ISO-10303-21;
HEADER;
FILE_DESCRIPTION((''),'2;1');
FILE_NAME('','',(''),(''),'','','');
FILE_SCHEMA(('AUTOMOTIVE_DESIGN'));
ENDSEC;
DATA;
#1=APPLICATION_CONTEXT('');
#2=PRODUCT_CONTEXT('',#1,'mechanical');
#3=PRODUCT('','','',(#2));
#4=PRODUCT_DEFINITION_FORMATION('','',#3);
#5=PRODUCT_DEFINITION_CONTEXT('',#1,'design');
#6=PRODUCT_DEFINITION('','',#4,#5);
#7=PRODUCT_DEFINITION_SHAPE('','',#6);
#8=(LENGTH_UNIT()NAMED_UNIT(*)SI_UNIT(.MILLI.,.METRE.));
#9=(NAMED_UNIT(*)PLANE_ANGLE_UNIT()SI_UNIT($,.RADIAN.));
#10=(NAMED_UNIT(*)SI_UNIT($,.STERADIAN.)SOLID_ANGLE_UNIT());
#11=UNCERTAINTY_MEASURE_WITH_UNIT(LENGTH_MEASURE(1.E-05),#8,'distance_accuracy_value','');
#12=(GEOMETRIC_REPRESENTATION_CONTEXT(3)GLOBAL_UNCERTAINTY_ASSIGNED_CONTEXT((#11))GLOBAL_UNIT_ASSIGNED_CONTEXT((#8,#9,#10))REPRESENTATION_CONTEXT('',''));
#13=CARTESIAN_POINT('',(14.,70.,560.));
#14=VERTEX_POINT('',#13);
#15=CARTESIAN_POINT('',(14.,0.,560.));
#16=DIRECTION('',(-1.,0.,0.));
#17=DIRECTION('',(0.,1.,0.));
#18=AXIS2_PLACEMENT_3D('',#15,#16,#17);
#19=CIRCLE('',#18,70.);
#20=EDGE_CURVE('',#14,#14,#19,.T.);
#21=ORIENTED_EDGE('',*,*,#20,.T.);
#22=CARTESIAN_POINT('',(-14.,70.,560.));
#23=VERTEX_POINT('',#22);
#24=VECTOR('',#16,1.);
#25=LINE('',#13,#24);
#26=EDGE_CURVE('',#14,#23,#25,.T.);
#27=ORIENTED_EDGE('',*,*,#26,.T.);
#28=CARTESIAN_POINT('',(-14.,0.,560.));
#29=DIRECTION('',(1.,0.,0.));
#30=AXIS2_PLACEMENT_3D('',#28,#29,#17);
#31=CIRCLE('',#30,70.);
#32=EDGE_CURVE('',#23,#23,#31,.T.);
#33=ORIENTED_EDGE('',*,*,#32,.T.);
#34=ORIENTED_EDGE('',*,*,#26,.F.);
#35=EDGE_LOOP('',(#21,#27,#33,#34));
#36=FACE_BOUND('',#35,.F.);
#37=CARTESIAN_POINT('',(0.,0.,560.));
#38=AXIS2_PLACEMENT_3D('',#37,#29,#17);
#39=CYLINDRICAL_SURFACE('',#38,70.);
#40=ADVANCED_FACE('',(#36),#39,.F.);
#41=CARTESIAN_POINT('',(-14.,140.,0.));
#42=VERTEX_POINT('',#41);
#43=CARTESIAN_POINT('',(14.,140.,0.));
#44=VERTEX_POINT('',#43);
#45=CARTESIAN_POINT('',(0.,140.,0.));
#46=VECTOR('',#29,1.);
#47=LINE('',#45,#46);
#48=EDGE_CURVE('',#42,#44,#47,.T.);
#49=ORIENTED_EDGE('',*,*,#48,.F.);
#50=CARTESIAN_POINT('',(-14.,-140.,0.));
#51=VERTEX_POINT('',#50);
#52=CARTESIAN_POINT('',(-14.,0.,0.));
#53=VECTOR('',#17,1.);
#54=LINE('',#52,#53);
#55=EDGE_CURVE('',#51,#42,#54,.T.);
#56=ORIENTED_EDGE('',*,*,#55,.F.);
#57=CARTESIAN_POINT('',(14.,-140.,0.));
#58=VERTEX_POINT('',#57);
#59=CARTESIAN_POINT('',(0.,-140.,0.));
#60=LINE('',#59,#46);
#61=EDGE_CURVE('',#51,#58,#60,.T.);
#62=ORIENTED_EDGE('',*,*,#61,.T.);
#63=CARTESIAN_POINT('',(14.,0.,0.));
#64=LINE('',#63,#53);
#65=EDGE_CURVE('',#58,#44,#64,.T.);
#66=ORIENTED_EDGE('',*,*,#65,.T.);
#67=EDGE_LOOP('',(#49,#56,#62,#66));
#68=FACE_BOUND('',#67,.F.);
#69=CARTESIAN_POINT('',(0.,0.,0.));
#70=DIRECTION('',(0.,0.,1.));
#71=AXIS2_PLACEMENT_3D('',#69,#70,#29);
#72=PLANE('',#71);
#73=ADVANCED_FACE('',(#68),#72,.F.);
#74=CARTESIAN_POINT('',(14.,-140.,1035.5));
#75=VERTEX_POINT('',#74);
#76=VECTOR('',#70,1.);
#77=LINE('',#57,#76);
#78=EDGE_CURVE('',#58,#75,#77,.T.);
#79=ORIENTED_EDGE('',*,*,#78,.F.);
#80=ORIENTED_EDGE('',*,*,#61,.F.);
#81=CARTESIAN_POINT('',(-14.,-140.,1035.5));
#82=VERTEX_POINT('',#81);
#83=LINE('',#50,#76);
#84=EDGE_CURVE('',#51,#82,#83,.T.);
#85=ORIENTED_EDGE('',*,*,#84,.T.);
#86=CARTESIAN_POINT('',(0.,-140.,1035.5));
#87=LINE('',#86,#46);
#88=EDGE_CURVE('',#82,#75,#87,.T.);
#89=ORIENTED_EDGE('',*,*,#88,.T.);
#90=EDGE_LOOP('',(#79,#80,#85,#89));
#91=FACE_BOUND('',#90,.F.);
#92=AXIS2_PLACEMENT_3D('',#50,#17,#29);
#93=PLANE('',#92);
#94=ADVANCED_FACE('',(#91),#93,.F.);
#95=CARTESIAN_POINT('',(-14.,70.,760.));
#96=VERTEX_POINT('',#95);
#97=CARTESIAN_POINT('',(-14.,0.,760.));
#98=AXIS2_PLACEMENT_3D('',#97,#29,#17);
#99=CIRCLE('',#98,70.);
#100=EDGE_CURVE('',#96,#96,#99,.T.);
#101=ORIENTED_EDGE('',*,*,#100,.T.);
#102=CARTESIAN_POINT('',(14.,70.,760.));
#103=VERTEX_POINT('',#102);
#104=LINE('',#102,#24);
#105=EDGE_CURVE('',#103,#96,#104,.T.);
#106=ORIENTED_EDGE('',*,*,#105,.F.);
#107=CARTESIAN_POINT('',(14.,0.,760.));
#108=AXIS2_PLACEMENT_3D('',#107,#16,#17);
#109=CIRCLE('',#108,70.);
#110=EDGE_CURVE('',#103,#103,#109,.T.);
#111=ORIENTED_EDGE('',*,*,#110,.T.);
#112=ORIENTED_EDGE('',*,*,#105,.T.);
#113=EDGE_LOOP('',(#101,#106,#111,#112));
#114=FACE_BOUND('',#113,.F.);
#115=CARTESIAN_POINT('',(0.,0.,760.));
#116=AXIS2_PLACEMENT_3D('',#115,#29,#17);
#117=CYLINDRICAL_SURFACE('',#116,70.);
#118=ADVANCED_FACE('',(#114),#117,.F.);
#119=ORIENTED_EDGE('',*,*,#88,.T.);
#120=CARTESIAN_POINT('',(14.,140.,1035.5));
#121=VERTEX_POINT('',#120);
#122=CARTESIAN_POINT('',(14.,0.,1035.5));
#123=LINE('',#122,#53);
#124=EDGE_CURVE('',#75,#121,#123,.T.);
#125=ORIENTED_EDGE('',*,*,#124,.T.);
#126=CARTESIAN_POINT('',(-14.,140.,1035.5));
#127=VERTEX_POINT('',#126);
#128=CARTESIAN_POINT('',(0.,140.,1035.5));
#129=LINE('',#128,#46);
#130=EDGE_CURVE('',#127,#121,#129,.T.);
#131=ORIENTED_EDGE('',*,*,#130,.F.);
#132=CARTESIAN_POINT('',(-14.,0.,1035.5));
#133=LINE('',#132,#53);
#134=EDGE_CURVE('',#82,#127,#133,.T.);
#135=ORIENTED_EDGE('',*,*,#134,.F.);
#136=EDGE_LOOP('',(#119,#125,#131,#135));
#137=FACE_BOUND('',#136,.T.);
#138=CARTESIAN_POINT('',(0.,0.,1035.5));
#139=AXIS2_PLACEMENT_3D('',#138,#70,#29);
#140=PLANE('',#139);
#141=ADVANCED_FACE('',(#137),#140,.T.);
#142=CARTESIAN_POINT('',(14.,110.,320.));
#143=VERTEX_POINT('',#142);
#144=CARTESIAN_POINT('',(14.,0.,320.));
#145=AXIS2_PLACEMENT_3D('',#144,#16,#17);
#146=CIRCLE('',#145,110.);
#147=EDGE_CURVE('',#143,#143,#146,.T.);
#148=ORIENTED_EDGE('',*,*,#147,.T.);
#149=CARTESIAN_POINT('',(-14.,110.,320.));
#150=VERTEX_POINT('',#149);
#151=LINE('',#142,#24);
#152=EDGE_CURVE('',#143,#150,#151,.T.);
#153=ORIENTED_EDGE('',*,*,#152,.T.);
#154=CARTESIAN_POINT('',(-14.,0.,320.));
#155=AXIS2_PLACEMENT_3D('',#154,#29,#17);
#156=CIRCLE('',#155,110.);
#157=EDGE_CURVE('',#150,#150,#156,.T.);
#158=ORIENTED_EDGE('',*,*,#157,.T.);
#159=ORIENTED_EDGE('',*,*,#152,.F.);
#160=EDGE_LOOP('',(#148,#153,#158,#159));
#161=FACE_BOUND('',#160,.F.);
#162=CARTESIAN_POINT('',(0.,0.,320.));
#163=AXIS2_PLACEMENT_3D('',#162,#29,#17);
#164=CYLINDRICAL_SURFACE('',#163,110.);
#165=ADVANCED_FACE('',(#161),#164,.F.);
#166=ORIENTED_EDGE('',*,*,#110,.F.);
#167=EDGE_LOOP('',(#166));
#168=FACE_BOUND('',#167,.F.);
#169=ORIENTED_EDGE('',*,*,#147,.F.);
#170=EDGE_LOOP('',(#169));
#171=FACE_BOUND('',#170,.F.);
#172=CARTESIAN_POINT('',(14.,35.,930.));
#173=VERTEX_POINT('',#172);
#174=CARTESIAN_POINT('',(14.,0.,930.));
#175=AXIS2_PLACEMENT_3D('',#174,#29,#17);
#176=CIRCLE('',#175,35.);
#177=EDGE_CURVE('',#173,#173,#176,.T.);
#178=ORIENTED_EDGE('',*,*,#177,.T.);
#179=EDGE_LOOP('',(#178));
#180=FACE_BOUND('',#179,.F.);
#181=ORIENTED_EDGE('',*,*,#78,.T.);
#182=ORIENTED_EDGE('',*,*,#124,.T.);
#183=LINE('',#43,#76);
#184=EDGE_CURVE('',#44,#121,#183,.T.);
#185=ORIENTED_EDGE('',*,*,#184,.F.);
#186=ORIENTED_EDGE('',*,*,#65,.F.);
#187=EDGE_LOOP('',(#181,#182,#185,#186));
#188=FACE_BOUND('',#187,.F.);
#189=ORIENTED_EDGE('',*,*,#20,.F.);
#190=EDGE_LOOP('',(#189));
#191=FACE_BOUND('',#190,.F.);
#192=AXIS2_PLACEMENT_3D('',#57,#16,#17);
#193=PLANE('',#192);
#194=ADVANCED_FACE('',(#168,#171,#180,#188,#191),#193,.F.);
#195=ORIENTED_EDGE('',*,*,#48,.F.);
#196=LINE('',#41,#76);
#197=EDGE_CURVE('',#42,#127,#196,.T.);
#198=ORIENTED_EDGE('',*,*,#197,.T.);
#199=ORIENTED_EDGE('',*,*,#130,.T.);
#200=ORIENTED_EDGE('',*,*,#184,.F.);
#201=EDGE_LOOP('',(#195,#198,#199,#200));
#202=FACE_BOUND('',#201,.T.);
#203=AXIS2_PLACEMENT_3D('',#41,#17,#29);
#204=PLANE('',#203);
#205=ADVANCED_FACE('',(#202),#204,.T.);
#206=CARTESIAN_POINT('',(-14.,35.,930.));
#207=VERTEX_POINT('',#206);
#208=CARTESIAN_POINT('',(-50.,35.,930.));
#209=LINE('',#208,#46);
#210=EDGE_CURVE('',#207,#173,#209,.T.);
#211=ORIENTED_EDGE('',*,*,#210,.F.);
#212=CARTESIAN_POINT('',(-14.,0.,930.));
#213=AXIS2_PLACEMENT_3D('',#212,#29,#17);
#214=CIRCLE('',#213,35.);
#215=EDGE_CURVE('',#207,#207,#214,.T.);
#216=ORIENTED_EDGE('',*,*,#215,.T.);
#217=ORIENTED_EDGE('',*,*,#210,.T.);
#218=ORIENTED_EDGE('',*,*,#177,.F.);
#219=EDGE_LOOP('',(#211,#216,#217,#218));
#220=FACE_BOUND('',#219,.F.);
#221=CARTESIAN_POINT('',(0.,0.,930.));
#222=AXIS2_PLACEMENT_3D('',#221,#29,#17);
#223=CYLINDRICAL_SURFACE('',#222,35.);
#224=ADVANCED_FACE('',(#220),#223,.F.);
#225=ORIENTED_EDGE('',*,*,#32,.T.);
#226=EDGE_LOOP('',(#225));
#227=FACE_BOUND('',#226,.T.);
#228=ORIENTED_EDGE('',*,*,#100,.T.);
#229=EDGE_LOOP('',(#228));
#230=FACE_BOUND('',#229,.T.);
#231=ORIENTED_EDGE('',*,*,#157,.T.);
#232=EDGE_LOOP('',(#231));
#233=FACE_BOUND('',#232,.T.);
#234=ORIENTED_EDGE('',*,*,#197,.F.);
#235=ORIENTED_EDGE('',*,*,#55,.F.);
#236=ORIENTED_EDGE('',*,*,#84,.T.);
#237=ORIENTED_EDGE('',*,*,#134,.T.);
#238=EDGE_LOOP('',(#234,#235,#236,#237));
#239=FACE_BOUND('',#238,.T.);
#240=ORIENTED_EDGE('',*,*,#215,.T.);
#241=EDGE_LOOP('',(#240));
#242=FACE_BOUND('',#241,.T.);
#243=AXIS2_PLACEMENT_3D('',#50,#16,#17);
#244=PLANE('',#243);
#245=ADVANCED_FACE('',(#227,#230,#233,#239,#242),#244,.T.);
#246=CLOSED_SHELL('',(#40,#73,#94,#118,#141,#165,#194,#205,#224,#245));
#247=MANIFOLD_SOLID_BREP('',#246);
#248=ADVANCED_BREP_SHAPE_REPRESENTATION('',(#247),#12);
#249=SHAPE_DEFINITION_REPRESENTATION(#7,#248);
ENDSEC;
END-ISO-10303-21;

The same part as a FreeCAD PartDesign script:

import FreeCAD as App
import Part
import Sketcher

V = App.Vector


def add_polygon(sketch, points):
    """Adds a closed chain of lines whose ends are joined by coincident constraints."""
    first, n = sketch.GeometryCount, len(points)
    for a, b in zip(points, points[1:] + points[:1]):
        sketch.addGeometry(Part.LineSegment(App.Vector(*a, 0), App.Vector(*b, 0)), False)
    for i in range(n):
        sketch.addConstraint(Sketcher.Constraint("Coincident", first + i, 2, first + (i + 1) % n, 1))

doc = App.newDocument("Part")
body = doc.addObject("PartDesign::Body", "Body")

# Sketch on XY plane
sketch1 = body.newObject("Sketcher::SketchObject", "Sketch")
sketch1.AttachmentSupport = (doc.getObject("XY_Plane"), [""])
sketch1.MapMode = "FlatFace"
add_polygon(sketch1, [(-14, 140), (-14, -140), (14, -140), (14, 140)])  # lines 0-3
sketch1.addConstraint([
    Sketcher.Constraint("Vertical", 0),
    Sketcher.Constraint("Horizontal", 1),
    Sketcher.Constraint("Vertical", 2),
    Sketcher.Constraint("Horizontal", 3),
    Sketcher.Constraint("Symmetric", 0, 2, 2, 2, -1, 1),
    Sketcher.Constraint("DistanceX", 1, 1, 1, 2, 28.0),
    Sketcher.Constraint("DistanceY", 0, 2, 0, 1, 280.0),
])
pad1 = body.newObject("PartDesign::Pad", "Pad")
pad1.Profile = sketch1
pad1.Length = 1035.5

# Sketch on YZ plane
sketch2 = body.newObject("Sketcher::SketchObject", "Sketch001")
sketch2.AttachmentSupport = (doc.getObject("YZ_Plane"), [""])
sketch2.MapMode = "FlatFace"
sketch2.addGeometry([
    Part.Circle(V(0, 320, 0), V(0, 0, 1), 110),
    Part.Circle(V(0, 560, 0), V(0, 0, 1), 70),
    Part.Circle(V(0, 760, 0), V(0, 0, 1), 70),
    Part.Circle(V(0, 930, 0), V(0, 0, 1), 35),
], False)
sketch2.addConstraint([
    Sketcher.Constraint("Equal", 1, 2),
    Sketcher.Constraint("PointOnObject", 0, 3, -2),
    Sketcher.Constraint("PointOnObject", 1, 3, -2),
    Sketcher.Constraint("PointOnObject", 2, 3, -2),
    Sketcher.Constraint("PointOnObject", 3, 3, -2),
    Sketcher.Constraint("Diameter", 0, 220.0),
    Sketcher.Constraint("Diameter", 1, 140.0),
    Sketcher.Constraint("Diameter", 3, 70.0),
    Sketcher.Constraint("DistanceY", -1, 1, 0, 3, 320.0),
    Sketcher.Constraint("DistanceY", -1, 1, 1, 3, 560.0),
    Sketcher.Constraint("DistanceY", -1, 1, 2, 3, 760.0),
    Sketcher.Constraint("DistanceY", -1, 1, 3, 3, 930.0),
])
pocket1 = body.newObject("PartDesign::Pocket", "Pocket")
pocket1.Profile = sketch2
pocket1.Length = 100
pocket1.Midplane = True

doc.recompute()
